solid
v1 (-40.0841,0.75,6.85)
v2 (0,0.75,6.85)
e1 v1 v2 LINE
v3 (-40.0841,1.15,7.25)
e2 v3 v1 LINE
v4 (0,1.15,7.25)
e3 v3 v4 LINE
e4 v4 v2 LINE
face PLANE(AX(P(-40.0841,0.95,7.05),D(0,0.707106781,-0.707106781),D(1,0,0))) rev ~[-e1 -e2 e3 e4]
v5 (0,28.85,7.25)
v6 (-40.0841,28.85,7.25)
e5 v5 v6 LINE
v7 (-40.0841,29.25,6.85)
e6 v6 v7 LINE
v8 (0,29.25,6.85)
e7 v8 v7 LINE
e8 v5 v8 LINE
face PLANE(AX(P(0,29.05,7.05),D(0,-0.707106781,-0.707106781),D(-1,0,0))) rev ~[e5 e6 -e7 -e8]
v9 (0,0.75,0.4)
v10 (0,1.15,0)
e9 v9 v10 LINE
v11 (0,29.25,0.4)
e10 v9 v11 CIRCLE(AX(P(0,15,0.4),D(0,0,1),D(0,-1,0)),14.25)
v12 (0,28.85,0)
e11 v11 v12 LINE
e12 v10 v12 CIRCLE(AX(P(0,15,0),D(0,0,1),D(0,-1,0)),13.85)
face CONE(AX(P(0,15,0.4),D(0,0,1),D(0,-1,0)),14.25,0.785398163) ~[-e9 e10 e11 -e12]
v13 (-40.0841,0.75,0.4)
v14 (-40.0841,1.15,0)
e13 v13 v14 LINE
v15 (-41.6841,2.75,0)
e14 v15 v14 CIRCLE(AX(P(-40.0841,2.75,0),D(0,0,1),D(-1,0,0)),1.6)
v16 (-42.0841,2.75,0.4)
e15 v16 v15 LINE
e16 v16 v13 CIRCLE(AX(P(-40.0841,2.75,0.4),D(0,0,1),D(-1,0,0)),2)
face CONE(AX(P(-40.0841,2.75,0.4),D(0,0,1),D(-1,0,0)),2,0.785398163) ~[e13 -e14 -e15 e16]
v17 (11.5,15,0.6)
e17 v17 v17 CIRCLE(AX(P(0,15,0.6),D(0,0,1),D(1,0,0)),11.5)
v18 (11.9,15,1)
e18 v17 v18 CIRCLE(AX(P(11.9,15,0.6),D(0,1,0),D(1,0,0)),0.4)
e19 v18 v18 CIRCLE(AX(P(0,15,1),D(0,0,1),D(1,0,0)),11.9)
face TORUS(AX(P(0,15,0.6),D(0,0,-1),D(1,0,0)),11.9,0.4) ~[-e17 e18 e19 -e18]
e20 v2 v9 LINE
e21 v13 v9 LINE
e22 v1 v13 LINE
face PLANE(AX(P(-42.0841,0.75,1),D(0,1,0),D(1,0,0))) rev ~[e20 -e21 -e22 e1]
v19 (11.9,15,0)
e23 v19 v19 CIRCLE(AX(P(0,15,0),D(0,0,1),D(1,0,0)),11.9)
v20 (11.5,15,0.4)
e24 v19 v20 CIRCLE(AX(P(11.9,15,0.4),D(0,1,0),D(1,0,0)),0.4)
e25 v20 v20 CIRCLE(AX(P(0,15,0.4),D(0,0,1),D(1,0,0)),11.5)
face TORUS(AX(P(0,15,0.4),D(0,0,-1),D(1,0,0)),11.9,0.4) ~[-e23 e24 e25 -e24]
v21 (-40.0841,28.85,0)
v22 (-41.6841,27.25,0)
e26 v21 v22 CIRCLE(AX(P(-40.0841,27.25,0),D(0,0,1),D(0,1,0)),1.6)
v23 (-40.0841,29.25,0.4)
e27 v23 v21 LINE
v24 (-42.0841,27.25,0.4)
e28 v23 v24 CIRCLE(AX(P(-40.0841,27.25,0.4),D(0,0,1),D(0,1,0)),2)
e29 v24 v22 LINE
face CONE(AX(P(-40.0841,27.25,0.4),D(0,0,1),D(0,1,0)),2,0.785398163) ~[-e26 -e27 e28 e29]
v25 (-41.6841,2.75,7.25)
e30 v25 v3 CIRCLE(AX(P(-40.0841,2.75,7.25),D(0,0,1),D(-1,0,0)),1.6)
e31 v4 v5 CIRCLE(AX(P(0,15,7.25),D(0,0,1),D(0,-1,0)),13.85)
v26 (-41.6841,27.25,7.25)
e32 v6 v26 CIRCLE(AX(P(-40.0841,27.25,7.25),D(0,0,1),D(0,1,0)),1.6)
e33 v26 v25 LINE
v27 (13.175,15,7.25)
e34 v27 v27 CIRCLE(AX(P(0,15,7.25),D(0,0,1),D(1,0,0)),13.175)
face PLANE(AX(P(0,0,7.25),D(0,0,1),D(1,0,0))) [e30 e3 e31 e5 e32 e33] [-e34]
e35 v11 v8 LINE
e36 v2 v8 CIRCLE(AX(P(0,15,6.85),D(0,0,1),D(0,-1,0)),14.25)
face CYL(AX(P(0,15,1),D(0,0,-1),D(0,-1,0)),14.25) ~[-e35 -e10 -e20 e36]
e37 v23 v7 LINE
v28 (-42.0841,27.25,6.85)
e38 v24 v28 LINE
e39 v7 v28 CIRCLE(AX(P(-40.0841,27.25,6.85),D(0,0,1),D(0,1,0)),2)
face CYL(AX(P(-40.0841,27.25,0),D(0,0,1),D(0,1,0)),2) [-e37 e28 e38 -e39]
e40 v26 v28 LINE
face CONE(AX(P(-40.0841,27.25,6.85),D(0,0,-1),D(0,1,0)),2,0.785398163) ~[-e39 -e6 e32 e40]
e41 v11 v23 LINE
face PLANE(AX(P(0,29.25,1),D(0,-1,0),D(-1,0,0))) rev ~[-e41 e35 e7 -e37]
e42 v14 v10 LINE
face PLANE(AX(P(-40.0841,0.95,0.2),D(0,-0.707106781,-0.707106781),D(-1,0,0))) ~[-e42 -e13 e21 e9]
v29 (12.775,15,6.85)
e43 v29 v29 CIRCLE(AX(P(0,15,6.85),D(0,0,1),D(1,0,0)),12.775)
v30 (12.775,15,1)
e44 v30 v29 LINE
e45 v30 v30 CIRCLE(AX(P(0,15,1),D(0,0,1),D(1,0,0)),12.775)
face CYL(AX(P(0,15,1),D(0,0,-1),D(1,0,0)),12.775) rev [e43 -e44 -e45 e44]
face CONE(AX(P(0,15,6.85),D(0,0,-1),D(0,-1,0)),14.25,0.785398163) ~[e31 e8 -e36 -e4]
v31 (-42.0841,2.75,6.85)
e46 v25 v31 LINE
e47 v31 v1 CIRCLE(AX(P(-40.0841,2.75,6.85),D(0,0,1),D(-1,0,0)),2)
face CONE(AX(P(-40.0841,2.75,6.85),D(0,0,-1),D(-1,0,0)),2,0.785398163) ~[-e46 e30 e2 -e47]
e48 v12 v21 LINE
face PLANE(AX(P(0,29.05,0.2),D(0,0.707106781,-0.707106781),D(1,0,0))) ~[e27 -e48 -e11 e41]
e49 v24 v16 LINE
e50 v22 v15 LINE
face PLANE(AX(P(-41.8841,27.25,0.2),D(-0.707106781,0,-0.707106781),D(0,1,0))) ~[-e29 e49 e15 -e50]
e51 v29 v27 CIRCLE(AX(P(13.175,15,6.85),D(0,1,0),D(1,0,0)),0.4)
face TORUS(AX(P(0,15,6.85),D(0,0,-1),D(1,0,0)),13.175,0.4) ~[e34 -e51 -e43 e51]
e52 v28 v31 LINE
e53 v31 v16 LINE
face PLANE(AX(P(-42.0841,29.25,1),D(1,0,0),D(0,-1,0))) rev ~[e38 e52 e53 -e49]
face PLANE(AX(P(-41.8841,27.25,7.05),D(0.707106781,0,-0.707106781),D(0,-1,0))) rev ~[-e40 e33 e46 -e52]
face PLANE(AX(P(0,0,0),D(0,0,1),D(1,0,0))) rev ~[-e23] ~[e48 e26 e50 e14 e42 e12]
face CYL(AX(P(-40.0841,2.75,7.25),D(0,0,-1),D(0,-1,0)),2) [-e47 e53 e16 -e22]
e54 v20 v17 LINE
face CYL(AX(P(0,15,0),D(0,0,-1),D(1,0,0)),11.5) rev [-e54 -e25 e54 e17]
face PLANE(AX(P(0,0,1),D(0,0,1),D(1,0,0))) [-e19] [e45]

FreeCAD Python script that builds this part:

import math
import FreeCAD as App
import Part
import Sketcher
from FreeCAD import Vector
Q = App.Units.Quantity


def edges_at(feature, points):
    """Names of the edges that pass closest to the given points."""
    edges = feature.Shape.Edges
    near = lambda p: min(range(len(edges)), key=lambda i: edges[i].distToShape(Part.Vertex(*p))[0])
    return sorted({f"Edge{near(p) + 1}" for p in points})

doc = App.newDocument("Part")
body = doc.addObject("PartDesign::Body", "Body")

# Sketch on XY plane
sketch1 = body.newObject("Sketcher::SketchObject", "Sketch")
sketch1.AttachmentSupport = (doc.getObject("XY_Plane"), [""])
sketch1.MapMode = "FlatFace"
sketch1.addGeometry(Part.LineSegment(Vector(0, 29.25, 0), Vector(-42.0841, 29.25, 0)), False)
sketch1.addGeometry(Part.LineSegment(Vector(-42.0841, 29.25, 0), Vector(-42.0841, 0.75, 0)), False)
sketch1.addGeometry(Part.LineSegment(Vector(-42.0841, 0.75, 0), Vector(0, 0.75, 0)), False)
sketch1.addGeometry(Part.ArcOfCircle(Part.Circle(Vector(0, 15, 0), Vector(0, 0, 1), 14.25), math.radians(-90), math.radians(90)), False)
sketch1.addGeometry(Part.Circle(Vector(0, 15, 0), Vector(0, 0, 1), 11.5), False)
sketch1.addConstraint(Sketcher.Constraint("Coincident", 0, 2, 1, 1))
sketch1.addConstraint(Sketcher.Constraint("Coincident", 1, 2, 2, 1))
sketch1.addConstraint(Sketcher.Constraint("Tangent", 2, 2, 3, 1))
sketch1.addConstraint(Sketcher.Constraint("Tangent", 3, 2, 0, 1))
sketch1.addConstraint(Sketcher.Constraint("Horizontal", 0))
sketch1.addConstraint(Sketcher.Constraint("Vertical", 1))
sketch1.addConstraint(Sketcher.Constraint("Horizontal", 2))
sketch1.addConstraint(Sketcher.Constraint("Coincident", 4, 3, 3, 3))
sketch1.addConstraint(Sketcher.Constraint("PointOnObject", 3, 3, -2))
sketch1.addConstraint(Sketcher.Constraint("Diameter", 4, Q("23 mm")))
sketch1.addConstraint(Sketcher.Constraint("DistanceY", -1, 1, 1, 2, Q("0.75 mm")))
sketch1.addConstraint(Sketcher.Constraint("Radius", 3, Q("14.25 mm")))
sketch1.addConstraint(Sketcher.Constraint("DistanceX", 0, 2, 0, 1, Q("42.084 mm")))
pad1 = body.newObject("PartDesign::Pad", "Pad")
pad1.Profile = sketch1
pad1.Length = 1

# Sketch on XY plane
sketch2 = body.newObject("Sketcher::SketchObject", "Sketch001")
sketch2.AttachmentSupport = (doc.getObject("XY_Plane"), [""])
sketch2.MapMode = "FlatFace"
sketch2.AttachmentOffset = App.Placement(Vector(0, 0, 1), App.Rotation())
sketch2.addGeometry(Part.ArcOfCircle(Part.Circle(Vector(0, 15, 0), Vector(0, 0, 1), 14.25), math.radians(-90), math.radians(90)), False)
sketch2.addGeometry(Part.LineSegment(Vector(0, 29.25, 0), Vector(-42.0841, 29.25, 0)), False)
sketch2.addGeometry(Part.LineSegment(Vector(-42.0841, 29.25, 0), Vector(-42.0841, 0.75, 0)), False)
sketch2.addGeometry(Part.LineSegment(Vector(-42.0841, 0.75, 0), Vector(0, 0.75, 0)), False)
sketch2.addGeometry(Part.Circle(Vector(0, 15, 0), Vector(0, 0, 1), 12.775), False)
sketch2.addConstraint(Sketcher.Constraint("Tangent", 0, 2, 1, 1))
sketch2.addConstraint(Sketcher.Constraint("Coincident", 1, 2, 2, 1))
sketch2.addConstraint(Sketcher.Constraint("Coincident", 2, 2, 3, 1))
sketch2.addConstraint(Sketcher.Constraint("Tangent", 3, 2, 0, 1))
sketch2.addConstraint(Sketcher.Constraint("Horizontal", 1))
sketch2.addConstraint(Sketcher.Constraint("Vertical", 2))
sketch2.addConstraint(Sketcher.Constraint("Horizontal", 3))
sketch2.addConstraint(Sketcher.Constraint("Coincident", 4, 3, 0, 3))
sketch2.addConstraint(Sketcher.Constraint("PointOnObject", 0, 3, -2))
sketch2.addConstraint(Sketcher.Constraint("Diameter", 4, Q("25.55 mm")))
sketch2.addConstraint(Sketcher.Constraint("Radius", 0, Q("14.25 mm")))
sketch2.addConstraint(Sketcher.Constraint("DistanceY", -1, 1, 0, 3, Q("15 mm")))
sketch2.addConstraint(Sketcher.Constraint("DistanceX", 1, 2, 1, 1, Q("42.084 mm")))
pad2 = body.newObject("PartDesign::Pad", "Pad001")
pad2.Profile = sketch2
pad2.Length = 6.25
doc.recompute()

fillet = body.newObject("PartDesign::Fillet", "Fillet")
fillet.Base = (pad2, edges_at(pad2, [(-42.084, 0.75, 3.625), (-42.084, 29.25, 3.625)]))
fillet.Radius = 2
doc.recompute()

chamfer = body.newObject("PartDesign::Chamfer", "Chamfer")
chamfer.Base = (fillet, edges_at(fillet, [
    (-20.042, 29.25, 7.25),
    (-41.498, 28.664, 7.25),
    (-42.084, 15, 7.25),
    (-41.498, 1.336, 7.25),
    (-20.042, 0.75, 7.25),
    (14.25, 15, 7.25),
]))
chamfer.Size = 0.4
doc.recompute()

chamfer2 = body.newObject("PartDesign::Chamfer", "Chamfer001")
chamfer2.Base = (chamfer, edges_at(chamfer, [
    (-20.042, 0.75, 0),
    (14.25, 15, 0),
    (-20.042, 29.25, 0),
    (-41.498, 28.664, 0),
    (-42.084, 15, 0),
    (-41.498, 1.336, 0),
]))
chamfer2.Size = 0.4
doc.recompute()

fillet2 = body.newObject("PartDesign::Fillet", "Fillet001")
fillet2.Base = (chamfer2, edges_at(chamfer2, [(-11.5, 15, 0)]))
fillet2.Radius = 0.4
doc.recompute()

fillet3 = body.newObject("PartDesign::Fillet", "Fillet002")
fillet3.Base = (fillet2, edges_at(fillet2, [(-11.5, 15, 1)]))
fillet3.Radius = 0.4
doc.recompute()

fillet4 = body.newObject("PartDesign::Fillet", "Fillet003")
fillet4.Base = (fillet3, edges_at(fillet3, [(-12.775, 15, 7.25)]))
fillet4.Radius = 0.4

doc.recompute()
